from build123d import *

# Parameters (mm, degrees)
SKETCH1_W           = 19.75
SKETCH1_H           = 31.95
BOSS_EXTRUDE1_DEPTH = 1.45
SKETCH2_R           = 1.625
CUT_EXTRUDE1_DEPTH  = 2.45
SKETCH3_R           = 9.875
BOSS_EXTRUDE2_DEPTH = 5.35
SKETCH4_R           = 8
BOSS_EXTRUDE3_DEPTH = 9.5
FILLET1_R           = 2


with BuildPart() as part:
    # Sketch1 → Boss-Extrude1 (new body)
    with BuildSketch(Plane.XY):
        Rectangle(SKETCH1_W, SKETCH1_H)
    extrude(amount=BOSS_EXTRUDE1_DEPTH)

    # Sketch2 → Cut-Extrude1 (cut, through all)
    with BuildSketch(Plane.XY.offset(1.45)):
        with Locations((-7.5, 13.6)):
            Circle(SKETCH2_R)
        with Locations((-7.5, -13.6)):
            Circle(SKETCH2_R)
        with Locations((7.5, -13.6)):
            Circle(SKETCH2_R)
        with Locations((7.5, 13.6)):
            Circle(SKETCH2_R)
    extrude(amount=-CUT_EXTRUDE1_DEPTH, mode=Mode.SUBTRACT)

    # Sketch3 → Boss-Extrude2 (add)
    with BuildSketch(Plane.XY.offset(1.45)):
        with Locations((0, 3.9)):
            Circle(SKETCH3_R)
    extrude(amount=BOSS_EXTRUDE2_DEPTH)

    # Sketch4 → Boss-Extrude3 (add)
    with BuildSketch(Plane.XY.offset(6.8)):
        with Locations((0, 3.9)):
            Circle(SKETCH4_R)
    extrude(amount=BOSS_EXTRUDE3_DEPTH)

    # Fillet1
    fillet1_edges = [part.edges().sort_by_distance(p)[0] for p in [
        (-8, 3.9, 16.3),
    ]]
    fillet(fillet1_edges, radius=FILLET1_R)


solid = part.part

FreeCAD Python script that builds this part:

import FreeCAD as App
import Part
import Sketcher
from FreeCAD import Vector


def edges_at(feature, points):
    """Names of the edges that pass closest to the given points."""
    edges = feature.Shape.Edges
    near = lambda p: min(range(len(edges)), key=lambda i: edges[i].distToShape(Part.Vertex(*p))[0])
    return sorted({f"Edge{near(p) + 1}" for p in points})

doc = App.newDocument("Part")
body = doc.addObject("PartDesign::Body", "Body")

sketch1 = body.newObject("Sketcher::SketchObject", "Sketch")
sketch1.AttachmentSupport = (doc.getObject("XY_Plane"), [""])
sketch1.MapMode = "FlatFace"
sketch1.addGeometry(Part.LineSegment(Vector(-10, 16, 0), Vector(-10, -16, 0)), False)
sketch1.addGeometry(Part.LineSegment(Vector(-10, -16, 0), Vector(10, -16, 0)), False)
sketch1.addGeometry(Part.LineSegment(Vector(10, -16, 0), Vector(10, 16, 0)), False)
sketch1.addGeometry(Part.LineSegment(Vector(10, 16, 0), Vector(-10, 16, 0)), False)
sketch1.addConstraint(Sketcher.Constraint("Coincident", 0, 2, 1, 1))
sketch1.addConstraint(Sketcher.Constraint("Coincident", 1, 2, 2, 1))
sketch1.addConstraint(Sketcher.Constraint("Coincident", 2, 2, 3, 1))
sketch1.addConstraint(Sketcher.Constraint("Coincident", 3, 2, 0, 1))
sketch1.addConstraint(Sketcher.Constraint("Vertical", 0))
sketch1.addConstraint(Sketcher.Constraint("Horizontal", 1))
sketch1.addConstraint(Sketcher.Constraint("Vertical", 2))
sketch1.addConstraint(Sketcher.Constraint("Horizontal", 3))
sketch1.addConstraint(Sketcher.Constraint("Symmetric", 0, 2, 2, 2, -1, 1))
sketch1.addConstraint(Sketcher.Constraint("DistanceX", 1, 1, 1, 2, 19.75))
sketch1.addConstraint(Sketcher.Constraint("DistanceY", 0, 2, 0, 1, 31.95))
pad1 = body.newObject("PartDesign::Pad", "Pad")
pad1.Profile = sketch1
pad1.Length = 1.45

sketch2 = body.newObject("Sketcher::SketchObject", "Sketch001")
sketch2.AttachmentSupport = (doc.getObject("XY_Plane"), [""])
sketch2.MapMode = "FlatFace"
sketch2.AttachmentOffset = App.Placement(Vector(0, 0, 1.45), App.Rotation())
sketch2.addGeometry(Part.Circle(Vector(-7.5, 13.6, 0), Vector(0, 0, 1), 1.6), False)
sketch2.addGeometry(Part.Circle(Vector(-7.5, -13.6, 0), Vector(0, 0, 1), 1.6), False)
sketch2.addGeometry(Part.Circle(Vector(7.5, -13.6, 0), Vector(0, 0, 1), 1.6), False)
sketch2.addGeometry(Part.Circle(Vector(7.5, 13.6, 0), Vector(0, 0, 1), 1.6), False)
sketch2.addConstraint(Sketcher.Constraint("Equal", 0, 1))
sketch2.addConstraint(Sketcher.Constraint("Equal", 1, 2))
sketch2.addConstraint(Sketcher.Constraint("Equal", 2, 3))
sketch2.addConstraint(Sketcher.Constraint("Symmetric", 0, 3, 2, 3, -1, 1))
sketch2.addConstraint(Sketcher.Constraint("Symmetric", 1, 3, 3, 3, -1, 1))
sketch2.addConstraint(Sketcher.Constraint("Symmetric", 1, 3, 2, 3, -2))
sketch2.addConstraint(Sketcher.Constraint("Diameter", 0, 3.25))
sketch2.addConstraint(Sketcher.Constraint("DistanceX", 1, 3, 2, 3, 15.0))
sketch2.addConstraint(Sketcher.Constraint("DistanceY", -1, 1, 0, 3, 13.6))
pocket1 = body.newObject("PartDesign::Pocket", "Pocket")
pocket1.Profile = sketch2
pocket1.Type = "ThroughAll"

sketch3 = body.newObject("Sketcher::SketchObject", "Sketch002")
sketch3.AttachmentSupport = (doc.getObject("XY_Plane"), [""])
sketch3.MapMode = "FlatFace"
sketch3.AttachmentOffset = App.Placement(Vector(0, 0, 1.45), App.Rotation())
sketch3.addGeometry(Part.Circle(Vector(0, 4, 0), Vector(0, 0, 1), 10), False)
sketch3.addConstraint(Sketcher.Constraint("PointOnObject", 0, 3, -2))
sketch3.addConstraint(Sketcher.Constraint("Diameter", 0, 19.75))
sketch3.addConstraint(Sketcher.Constraint("DistanceY", -1, 1, 0, 3, 3.9))
pad2 = body.newObject("PartDesign::Pad", "Pad001")
pad2.Profile = sketch3
pad2.Length = 5.35

sketch4 = body.newObject("Sketcher::SketchObject", "Sketch003")
sketch4.AttachmentSupport = (doc.getObject("XY_Plane"), [""])
sketch4.MapMode = "FlatFace"
sketch4.AttachmentOffset = App.Placement(Vector(0, 0, 6.8), App.Rotation())
sketch4.addGeometry(Part.Circle(Vector(0, 4, 0), Vector(0, 0, 1), 8), False)
sketch4.addConstraint(Sketcher.Constraint("PointOnObject", 0, 3, -2))
sketch4.addConstraint(Sketcher.Constraint("Diameter", 0, 16.0))
sketch4.addConstraint(Sketcher.Constraint("DistanceY", -1, 1, 0, 3, 3.9))
pad3 = body.newObject("PartDesign::Pad", "Pad002")
pad3.Profile = sketch4
pad3.Length = 9.5
doc.recompute()

fillet = body.newObject("PartDesign::Fillet", "Fillet")
fillet.Base = (pad3, edges_at(pad3, [(-8, 3.9, 16.3)]))
fillet.Radius = 2

doc.recompute()
